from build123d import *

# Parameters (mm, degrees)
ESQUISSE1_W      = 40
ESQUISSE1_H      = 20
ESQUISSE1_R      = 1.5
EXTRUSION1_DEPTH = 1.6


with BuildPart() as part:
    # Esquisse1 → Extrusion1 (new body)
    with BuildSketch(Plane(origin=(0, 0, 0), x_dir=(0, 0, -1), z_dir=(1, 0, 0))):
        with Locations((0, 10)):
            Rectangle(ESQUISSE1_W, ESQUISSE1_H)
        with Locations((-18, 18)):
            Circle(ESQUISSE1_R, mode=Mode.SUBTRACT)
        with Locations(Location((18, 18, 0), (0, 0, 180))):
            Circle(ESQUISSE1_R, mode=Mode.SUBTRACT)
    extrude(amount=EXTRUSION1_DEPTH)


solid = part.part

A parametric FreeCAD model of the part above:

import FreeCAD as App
import Part
import Sketcher
Q = App.Units.Quantity

doc = App.newDocument("Part")
body = doc.addObject("PartDesign::Body", "Body")

sketch1 = body.newObject("Sketcher::SketchObject", "Sketch")
sketch1.AttachmentSupport = (doc.getObject("YZ_Plane"), [""])
sketch1.MapMode = "FlatFace"
sketch1.addGeometry([
    Part.LineSegment(App.Vector(20, 20, 0), App.Vector(0, 20, 0)),
    Part.LineSegment(App.Vector(0, 20, 0), App.Vector(0, -20, 0)),
    Part.LineSegment(App.Vector(0, -20, 0), App.Vector(20, -20, 0)),
    Part.LineSegment(App.Vector(20, -20, 0), App.Vector(20, 20, 0)),
    Part.Circle(App.Vector(18, 18, 0), App.Vector(0, 0, 1), 1.5),
    Part.Circle(App.Vector(18, -18, 0), App.Vector(0, 0, 1), 1.5),
], False)
sketch1.addConstraint([
    Sketcher.Constraint("Coincident", 0, 2, 1, 1),
    Sketcher.Constraint("Coincident", 1, 2, 2, 1),
    Sketcher.Constraint("Coincident", 2, 2, 3, 1),
    Sketcher.Constraint("Coincident", 3, 2, 0, 1),
    Sketcher.Constraint("Horizontal", 0),
    Sketcher.Constraint("Vertical", 1),
    Sketcher.Constraint("Horizontal", 2),
    Sketcher.Constraint("Vertical", 3),
    Sketcher.Constraint("Equal", 4, 5),
    Sketcher.Constraint("Symmetric", 0, 2, 1, 2, -1, 1),
    Sketcher.Constraint("Symmetric", 4, 3, 5, 3, -1),
    Sketcher.Constraint("Diameter", 4, Q("3 mm")),
    Sketcher.Constraint("DistanceX", 0, 2, 0, 1, Q("20 mm")),
    Sketcher.Constraint("DistanceY", 1, 2, 1, 1, Q("40 mm")),
    Sketcher.Constraint("DistanceX", -1, 1, 4, 3, Q("18 mm")),
    Sketcher.Constraint("DistanceY", -1, 1, 4, 3, Q("18 mm")),
])
pad1 = body.newObject("PartDesign::Pad", "Pad")
pad1.Profile = sketch1
pad1.Length = 1.6

doc.recompute()
